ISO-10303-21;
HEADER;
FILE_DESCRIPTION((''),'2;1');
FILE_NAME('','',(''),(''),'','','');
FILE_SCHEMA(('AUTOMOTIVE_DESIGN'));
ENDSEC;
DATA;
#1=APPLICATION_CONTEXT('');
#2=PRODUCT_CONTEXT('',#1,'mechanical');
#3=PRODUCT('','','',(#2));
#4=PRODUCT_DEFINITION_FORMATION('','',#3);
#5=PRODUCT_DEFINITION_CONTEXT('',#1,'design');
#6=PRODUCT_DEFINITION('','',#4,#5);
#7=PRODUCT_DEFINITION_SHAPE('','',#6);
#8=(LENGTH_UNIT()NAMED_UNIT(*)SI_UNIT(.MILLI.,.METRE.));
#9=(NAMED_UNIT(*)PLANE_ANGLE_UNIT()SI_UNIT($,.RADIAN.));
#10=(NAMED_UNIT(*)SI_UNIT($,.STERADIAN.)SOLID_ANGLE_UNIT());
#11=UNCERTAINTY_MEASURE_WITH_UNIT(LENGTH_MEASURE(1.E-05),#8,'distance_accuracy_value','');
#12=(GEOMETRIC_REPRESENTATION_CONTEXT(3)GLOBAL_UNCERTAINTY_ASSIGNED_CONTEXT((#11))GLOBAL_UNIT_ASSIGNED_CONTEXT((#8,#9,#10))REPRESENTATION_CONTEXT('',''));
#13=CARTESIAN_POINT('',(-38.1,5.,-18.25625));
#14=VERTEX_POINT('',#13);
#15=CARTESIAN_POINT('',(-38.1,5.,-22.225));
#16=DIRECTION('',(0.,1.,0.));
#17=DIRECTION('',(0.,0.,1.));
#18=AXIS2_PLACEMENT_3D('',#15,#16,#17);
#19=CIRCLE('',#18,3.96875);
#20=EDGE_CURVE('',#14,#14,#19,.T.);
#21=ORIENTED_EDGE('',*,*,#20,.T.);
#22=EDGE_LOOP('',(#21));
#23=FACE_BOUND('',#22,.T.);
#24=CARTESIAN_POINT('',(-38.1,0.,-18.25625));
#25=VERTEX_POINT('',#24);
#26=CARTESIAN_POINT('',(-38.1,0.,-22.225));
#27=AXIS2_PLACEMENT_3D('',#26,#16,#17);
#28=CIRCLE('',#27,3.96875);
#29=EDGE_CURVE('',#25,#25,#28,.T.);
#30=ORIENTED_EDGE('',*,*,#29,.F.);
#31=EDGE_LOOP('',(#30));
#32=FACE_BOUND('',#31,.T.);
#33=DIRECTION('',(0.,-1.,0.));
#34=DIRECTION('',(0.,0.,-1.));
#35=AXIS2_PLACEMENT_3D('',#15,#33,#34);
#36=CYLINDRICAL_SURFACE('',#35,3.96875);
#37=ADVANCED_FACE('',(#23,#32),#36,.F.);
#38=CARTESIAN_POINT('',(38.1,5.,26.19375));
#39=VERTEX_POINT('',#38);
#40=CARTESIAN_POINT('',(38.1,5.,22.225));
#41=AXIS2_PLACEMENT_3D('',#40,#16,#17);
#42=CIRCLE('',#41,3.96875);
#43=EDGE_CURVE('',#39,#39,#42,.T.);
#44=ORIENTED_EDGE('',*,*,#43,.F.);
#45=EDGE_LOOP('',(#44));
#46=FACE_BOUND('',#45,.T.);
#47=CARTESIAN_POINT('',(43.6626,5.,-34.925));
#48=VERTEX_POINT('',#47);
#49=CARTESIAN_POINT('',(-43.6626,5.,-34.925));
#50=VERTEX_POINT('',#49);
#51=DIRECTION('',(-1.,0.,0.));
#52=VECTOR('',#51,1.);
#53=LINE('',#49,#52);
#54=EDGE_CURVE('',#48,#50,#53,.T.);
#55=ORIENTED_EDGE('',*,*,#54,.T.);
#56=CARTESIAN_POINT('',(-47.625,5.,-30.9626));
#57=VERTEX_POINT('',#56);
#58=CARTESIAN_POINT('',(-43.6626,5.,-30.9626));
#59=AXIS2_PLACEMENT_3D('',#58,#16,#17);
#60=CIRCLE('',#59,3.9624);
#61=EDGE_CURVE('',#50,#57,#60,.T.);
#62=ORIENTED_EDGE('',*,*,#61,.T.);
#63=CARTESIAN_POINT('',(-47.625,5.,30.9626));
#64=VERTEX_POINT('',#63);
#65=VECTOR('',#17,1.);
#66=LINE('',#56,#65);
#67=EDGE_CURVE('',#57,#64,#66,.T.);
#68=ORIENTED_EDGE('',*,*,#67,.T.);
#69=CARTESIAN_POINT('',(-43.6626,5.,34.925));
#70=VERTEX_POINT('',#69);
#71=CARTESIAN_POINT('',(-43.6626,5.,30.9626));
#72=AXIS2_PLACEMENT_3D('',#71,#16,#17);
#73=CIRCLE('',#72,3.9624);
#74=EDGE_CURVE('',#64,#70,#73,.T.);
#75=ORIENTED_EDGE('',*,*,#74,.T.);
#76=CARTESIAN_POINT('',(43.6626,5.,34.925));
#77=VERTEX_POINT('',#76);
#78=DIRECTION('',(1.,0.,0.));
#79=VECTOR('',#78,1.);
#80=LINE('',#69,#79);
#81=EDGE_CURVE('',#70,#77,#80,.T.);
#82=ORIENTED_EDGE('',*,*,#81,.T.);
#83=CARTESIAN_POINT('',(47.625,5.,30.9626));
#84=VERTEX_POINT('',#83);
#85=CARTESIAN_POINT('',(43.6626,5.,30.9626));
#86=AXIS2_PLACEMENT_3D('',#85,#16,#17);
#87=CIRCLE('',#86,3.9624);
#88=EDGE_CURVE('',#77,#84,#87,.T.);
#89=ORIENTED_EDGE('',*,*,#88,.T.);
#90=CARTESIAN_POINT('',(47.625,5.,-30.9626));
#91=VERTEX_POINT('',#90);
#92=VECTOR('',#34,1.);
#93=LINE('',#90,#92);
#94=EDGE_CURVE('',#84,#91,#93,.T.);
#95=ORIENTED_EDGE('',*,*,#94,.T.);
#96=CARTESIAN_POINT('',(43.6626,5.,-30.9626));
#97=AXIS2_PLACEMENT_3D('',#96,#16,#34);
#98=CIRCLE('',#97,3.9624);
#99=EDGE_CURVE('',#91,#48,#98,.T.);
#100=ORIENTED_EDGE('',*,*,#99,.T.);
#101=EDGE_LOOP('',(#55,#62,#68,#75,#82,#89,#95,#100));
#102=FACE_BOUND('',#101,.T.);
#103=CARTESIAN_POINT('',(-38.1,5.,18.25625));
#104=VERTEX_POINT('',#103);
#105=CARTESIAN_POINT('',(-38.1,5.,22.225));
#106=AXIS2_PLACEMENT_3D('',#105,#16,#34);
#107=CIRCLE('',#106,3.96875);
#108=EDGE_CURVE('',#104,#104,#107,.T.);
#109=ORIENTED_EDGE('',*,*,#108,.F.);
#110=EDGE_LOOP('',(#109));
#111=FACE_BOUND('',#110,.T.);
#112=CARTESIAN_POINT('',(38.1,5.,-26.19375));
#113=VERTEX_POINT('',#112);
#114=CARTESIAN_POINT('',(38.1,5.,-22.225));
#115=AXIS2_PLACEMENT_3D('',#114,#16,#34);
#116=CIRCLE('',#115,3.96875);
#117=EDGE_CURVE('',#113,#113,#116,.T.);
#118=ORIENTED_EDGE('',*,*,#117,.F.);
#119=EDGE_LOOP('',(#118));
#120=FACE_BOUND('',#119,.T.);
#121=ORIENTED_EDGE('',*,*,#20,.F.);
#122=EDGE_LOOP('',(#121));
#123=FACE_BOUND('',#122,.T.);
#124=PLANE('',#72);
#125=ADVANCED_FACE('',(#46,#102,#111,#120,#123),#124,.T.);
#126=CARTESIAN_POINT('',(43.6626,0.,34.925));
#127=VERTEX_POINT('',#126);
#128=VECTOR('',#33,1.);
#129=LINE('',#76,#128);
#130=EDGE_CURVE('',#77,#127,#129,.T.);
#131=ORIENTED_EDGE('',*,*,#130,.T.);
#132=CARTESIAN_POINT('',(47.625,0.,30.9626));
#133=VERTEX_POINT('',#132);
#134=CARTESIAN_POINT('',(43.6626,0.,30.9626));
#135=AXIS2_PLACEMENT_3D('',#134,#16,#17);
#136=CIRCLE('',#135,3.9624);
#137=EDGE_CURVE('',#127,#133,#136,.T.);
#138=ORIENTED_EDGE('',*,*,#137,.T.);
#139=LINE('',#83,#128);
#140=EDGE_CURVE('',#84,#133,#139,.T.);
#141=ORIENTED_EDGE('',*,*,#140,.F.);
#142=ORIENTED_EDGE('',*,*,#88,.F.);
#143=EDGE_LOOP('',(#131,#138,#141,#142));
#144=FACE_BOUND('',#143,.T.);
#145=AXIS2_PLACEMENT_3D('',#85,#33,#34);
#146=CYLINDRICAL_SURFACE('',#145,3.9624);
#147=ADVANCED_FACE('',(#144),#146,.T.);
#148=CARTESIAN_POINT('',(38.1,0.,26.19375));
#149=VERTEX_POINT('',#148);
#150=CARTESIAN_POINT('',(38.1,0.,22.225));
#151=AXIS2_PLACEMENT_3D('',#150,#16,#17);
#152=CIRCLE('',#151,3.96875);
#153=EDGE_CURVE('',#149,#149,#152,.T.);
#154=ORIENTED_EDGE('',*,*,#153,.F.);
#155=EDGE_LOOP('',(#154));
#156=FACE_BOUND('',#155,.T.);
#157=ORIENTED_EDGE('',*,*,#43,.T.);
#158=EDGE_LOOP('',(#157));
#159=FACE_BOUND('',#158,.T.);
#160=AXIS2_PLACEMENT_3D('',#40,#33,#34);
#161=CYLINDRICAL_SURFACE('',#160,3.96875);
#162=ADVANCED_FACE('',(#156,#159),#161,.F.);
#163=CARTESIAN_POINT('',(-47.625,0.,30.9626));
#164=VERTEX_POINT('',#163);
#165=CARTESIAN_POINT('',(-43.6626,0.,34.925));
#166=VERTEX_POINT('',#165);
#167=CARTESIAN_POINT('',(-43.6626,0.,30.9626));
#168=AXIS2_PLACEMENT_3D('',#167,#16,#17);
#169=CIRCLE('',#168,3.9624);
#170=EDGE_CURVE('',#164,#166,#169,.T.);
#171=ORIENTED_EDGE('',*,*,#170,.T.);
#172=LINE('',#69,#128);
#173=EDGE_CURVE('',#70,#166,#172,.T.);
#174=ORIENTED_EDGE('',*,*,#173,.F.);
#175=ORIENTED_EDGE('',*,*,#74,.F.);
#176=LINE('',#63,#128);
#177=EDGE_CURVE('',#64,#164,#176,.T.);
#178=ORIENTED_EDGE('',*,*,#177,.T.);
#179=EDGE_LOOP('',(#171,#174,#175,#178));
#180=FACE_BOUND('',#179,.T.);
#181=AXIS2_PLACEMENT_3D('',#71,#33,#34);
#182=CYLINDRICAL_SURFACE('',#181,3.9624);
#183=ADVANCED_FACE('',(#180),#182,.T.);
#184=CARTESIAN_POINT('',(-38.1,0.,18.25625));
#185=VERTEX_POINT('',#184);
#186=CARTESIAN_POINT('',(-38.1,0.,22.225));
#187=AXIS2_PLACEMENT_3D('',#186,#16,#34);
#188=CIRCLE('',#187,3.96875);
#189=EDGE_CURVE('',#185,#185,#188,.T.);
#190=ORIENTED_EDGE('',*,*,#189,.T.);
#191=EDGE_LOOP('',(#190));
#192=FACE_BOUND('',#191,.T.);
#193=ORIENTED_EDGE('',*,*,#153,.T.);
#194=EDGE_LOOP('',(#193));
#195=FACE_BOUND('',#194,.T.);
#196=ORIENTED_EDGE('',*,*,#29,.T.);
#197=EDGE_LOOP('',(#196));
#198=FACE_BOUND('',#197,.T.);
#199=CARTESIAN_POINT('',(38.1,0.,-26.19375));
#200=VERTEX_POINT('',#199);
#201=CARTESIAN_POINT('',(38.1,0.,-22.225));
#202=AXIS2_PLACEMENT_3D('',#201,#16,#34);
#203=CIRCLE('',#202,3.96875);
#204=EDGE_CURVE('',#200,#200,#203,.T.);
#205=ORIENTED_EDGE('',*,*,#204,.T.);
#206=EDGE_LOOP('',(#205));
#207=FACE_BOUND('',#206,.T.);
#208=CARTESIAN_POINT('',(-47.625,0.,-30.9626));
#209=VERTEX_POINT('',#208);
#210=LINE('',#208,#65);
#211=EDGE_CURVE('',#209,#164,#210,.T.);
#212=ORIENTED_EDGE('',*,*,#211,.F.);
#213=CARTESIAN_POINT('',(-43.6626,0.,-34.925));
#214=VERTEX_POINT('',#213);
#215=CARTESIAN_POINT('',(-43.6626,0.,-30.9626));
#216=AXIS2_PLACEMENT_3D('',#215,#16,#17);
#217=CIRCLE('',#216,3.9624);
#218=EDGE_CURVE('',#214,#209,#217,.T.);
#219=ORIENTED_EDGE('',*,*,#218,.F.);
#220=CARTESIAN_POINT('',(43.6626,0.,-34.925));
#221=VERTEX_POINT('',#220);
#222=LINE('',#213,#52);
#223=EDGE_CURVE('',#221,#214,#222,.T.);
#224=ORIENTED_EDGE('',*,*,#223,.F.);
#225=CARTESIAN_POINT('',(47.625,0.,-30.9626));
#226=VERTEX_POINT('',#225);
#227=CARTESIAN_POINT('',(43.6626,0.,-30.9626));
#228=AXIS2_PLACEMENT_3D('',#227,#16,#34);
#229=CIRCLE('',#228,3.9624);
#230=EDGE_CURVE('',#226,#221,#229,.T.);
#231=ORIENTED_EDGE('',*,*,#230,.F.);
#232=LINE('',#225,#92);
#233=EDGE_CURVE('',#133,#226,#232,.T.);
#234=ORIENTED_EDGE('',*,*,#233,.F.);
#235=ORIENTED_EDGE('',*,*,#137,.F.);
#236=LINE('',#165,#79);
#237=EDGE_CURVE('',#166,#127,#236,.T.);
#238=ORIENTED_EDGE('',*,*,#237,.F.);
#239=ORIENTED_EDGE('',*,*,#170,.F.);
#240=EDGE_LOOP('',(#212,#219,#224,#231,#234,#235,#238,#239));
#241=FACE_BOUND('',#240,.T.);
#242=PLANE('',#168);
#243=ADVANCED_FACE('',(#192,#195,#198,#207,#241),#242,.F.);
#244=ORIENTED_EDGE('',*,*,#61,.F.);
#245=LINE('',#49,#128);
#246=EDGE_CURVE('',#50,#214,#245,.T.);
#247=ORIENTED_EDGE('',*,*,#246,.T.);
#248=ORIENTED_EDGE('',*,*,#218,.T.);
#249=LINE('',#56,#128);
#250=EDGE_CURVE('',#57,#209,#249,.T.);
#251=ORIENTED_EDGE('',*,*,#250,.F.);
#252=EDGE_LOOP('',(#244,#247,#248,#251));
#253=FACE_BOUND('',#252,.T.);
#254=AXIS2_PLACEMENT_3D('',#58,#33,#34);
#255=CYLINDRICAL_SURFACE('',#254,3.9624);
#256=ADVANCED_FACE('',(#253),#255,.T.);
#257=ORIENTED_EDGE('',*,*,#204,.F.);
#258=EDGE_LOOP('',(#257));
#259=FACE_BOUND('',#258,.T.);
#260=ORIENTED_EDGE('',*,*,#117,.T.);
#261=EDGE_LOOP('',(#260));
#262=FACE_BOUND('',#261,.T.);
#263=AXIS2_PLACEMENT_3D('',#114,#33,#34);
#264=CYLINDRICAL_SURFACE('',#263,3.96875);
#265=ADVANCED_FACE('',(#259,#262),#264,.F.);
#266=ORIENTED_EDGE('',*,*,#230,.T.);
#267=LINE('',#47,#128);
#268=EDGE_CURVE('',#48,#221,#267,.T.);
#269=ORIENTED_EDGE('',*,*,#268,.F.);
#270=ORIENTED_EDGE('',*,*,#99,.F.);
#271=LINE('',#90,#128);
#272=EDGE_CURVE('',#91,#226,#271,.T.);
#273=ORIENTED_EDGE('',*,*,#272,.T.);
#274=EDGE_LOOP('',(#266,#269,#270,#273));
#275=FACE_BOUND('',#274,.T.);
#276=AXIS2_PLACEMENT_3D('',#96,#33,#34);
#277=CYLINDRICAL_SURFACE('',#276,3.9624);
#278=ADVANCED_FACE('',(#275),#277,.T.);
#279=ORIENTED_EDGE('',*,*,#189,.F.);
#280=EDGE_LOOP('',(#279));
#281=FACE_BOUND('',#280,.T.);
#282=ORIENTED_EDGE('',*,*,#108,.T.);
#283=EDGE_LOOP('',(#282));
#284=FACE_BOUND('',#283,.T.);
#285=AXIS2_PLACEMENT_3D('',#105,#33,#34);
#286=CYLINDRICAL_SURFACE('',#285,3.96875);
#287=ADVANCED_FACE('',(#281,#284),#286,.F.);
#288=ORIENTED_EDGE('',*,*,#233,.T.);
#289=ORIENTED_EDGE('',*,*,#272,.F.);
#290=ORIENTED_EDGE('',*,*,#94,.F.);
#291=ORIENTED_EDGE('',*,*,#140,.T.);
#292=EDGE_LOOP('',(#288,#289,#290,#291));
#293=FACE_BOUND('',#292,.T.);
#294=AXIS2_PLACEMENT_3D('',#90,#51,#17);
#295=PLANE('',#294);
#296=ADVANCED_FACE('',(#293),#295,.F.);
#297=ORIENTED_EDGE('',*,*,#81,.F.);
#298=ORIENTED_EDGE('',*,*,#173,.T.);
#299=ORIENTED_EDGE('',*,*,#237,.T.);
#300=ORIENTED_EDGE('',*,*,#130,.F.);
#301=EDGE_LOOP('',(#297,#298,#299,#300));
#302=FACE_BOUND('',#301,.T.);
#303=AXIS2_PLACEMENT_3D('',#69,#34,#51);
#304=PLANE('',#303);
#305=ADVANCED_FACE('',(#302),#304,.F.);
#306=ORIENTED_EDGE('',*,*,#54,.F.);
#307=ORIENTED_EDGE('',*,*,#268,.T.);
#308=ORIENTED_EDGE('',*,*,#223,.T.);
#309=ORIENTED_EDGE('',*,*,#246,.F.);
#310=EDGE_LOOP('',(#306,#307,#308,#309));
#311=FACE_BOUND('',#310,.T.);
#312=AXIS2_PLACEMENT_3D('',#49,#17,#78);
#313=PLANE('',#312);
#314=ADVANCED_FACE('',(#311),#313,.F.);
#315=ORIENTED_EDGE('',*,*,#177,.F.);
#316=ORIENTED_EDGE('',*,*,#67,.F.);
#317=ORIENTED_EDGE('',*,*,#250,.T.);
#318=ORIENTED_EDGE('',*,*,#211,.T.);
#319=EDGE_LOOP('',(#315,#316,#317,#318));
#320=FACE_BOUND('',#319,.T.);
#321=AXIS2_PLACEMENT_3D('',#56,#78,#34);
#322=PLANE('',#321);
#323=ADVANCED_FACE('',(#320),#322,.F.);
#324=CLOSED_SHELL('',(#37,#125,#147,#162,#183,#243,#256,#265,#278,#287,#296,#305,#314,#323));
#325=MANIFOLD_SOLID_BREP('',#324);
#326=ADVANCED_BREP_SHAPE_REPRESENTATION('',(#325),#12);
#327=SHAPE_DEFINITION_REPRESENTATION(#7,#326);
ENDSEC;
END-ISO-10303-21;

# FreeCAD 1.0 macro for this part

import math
import FreeCAD as App
import Part
import Sketcher

V = App.Vector
Q = App.Units.Quantity

doc = App.newDocument("Part")
params = doc.addObject("Spreadsheet::Sheet", "Params")
for row, (alias, value) in enumerate([
    ("sketch1_diameter", "0.3125 in"),
    ("sketch1_radius", "0.156 in"),
    ("sketch1_width", "3.438 in"),
    ("sketch1_height", "2.438 in"),
    ("pad1_length", "5 mm"),
], start=1):
    params.set(f"A{row}", alias)
    params.set(f"B{row}", "=" + value)
    params.setAlias(f"B{row}", alias)

body = doc.addObject("PartDesign::Body", "Body")

sketch1 = body.newObject("Sketcher::SketchObject", "Sketch")
sketch1.AttachmentSupport = (doc.getObject("XZ_Plane"), [""])
sketch1.MapMode = "FlatFace"
sketch1.addGeometry([
    Part.LineSegment(V(43.7, -34.9, 0), V(-43.7, -34.9, 0)),
    Part.ArcOfCircle(Part.Circle(V(-43.7, -31, 0), V(0, 0, 1), 4), math.radians(180), math.radians(270)),
    Part.LineSegment(V(-47.6, -31, 0), V(-47.6, 31, 0)),
    Part.ArcOfCircle(Part.Circle(V(-43.7, 31, 0), V(0, 0, 1), 4), math.radians(90), math.radians(180)),
    Part.LineSegment(V(-43.7, 34.9, 0), V(43.7, 34.9, 0)),
    Part.ArcOfCircle(Part.Circle(V(43.7, 31, 0), V(0, 0, 1), 4), math.radians(0), math.radians(90)),
    Part.LineSegment(V(47.6, 31, 0), V(47.6, -31, 0)),
    Part.ArcOfCircle(Part.Circle(V(43.7, -31, 0), V(0, 0, 1), 4), math.radians(-90), math.radians(0)),
    Part.Circle(V(38.1, 22.2, 0), V(0, 0, 1), 4),
    Part.Circle(V(-38.1, 22.2, 0), V(0, 0, 1), 4),
    Part.Circle(V(38.1, -22.2, 0), V(0, 0, 1), 4),
    Part.Circle(V(-38.1, -22.2, 0), V(0, 0, 1), 4),
], False)
sketch1.addConstraint([
    Sketcher.Constraint("Tangent", 0, 2, 1, 2),
    Sketcher.Constraint("Tangent", 1, 1, 2, 1),
    Sketcher.Constraint("Tangent", 2, 2, 3, 2),
    Sketcher.Constraint("Tangent", 3, 1, 4, 1),
    Sketcher.Constraint("Tangent", 4, 2, 5, 2),
    Sketcher.Constraint("Tangent", 5, 1, 6, 1),
    Sketcher.Constraint("Tangent", 6, 2, 7, 2),
    Sketcher.Constraint("Tangent", 7, 1, 0, 1),
    Sketcher.Constraint("Horizontal", 0),
    Sketcher.Constraint("Vertical", 2),
    Sketcher.Constraint("Horizontal", 4),
    Sketcher.Constraint("Vertical", 6),
    Sketcher.Constraint("Equal", 1, 3),
    Sketcher.Constraint("Equal", 3, 5),
    Sketcher.Constraint("Equal", 5, 7),
    Sketcher.Constraint("Equal", 8, 9),
    Sketcher.Constraint("Equal", 9, 10),
    Sketcher.Constraint("Equal", 10, 11),
    Sketcher.Constraint("Symmetric", 1, 3, 5, 3, -1, 1),
    Sketcher.Constraint("Symmetric", 9, 3, 10, 3, -1, 1),
    Sketcher.Constraint("Symmetric", 8, 3, 11, 3, -1, 1),
    Sketcher.Constraint("Symmetric", 8, 3, 9, 3, -2),
    Sketcher.Constraint("Diameter", 8, Q("0.3125 in")),
    Sketcher.Constraint("Radius", 1, Q("0.156 in")),
    Sketcher.Constraint("DistanceX", 9, 3, 8, 3, Q("3 in")),
    Sketcher.Constraint("DistanceY", 0, 2, 11, 3, Q("0.5 in")),
    Sketcher.Constraint("DistanceX", 0, 2, 0, 1, Q("3.438 in")),
    Sketcher.Constraint("DistanceY", 2, 1, 2, 2, Q("2.438 in")),
])
sketch1.setExpression("Constraints[22]", "Params.sketch1_diameter")
sketch1.setExpression("Constraints[23]", "Params.sketch1_radius")
sketch1.setExpression("Constraints[26]", "Params.sketch1_width")
sketch1.setExpression("Constraints[27]", "Params.sketch1_height")
pad1 = body.newObject("PartDesign::Pad", "Pad")
pad1.Profile = sketch1
pad1.setExpression("Length", "Params.pad1_length")
pad1.Reversed = True

doc.recompute()
